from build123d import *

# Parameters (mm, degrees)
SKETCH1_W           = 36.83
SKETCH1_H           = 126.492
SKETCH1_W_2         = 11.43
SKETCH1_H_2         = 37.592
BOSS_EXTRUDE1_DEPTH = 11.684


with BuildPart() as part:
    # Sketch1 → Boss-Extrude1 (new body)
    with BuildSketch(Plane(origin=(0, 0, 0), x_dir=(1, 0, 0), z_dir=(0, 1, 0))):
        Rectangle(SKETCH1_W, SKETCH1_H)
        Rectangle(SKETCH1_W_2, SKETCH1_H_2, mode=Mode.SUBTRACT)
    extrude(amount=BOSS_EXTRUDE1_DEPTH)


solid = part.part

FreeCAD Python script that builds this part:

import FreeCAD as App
import Part
import Sketcher
Q = App.Units.Quantity

doc = App.newDocument("Part")
body = doc.addObject("PartDesign::Body", "Body")

# Sketch on XZ plane
sketch1 = doc.addObject("Sketcher::SketchObject", "Sketch")
body.addObject(sketch1)
sketch1.AttachmentSupport = (doc.XZ_Plane, [""])
sketch1.MapMode = "FlatFace"
sketch1.addGeometry(Part.LineSegment(App.Vector(-18, -63, 0), App.Vector(-18, 63, 0)), False)
sketch1.addGeometry(Part.LineSegment(App.Vector(-18, 63, 0), App.Vector(18, 63, 0)), False)
sketch1.addGeometry(Part.LineSegment(App.Vector(18, 63, 0), App.Vector(18, -63, 0)), False)
sketch1.addGeometry(Part.LineSegment(App.Vector(18, -63, 0), App.Vector(-18, -63, 0)), False)
sketch1.addGeometry(Part.LineSegment(App.Vector(6, 19, 0), App.Vector(-6, 19, 0)), False)
sketch1.addGeometry(Part.LineSegment(App.Vector(-6, 19, 0), App.Vector(-6, -19, 0)), False)
sketch1.addGeometry(Part.LineSegment(App.Vector(-6, -19, 0), App.Vector(6, -19, 0)), False)
sketch1.addGeometry(Part.LineSegment(App.Vector(6, -19, 0), App.Vector(6, 19, 0)), False)
sketch1.addConstraint(Sketcher.Constraint("Coincident", 0, 2, 1, 1))
sketch1.addConstraint(Sketcher.Constraint("Coincident", 1, 2, 2, 1))
sketch1.addConstraint(Sketcher.Constraint("Coincident", 2, 2, 3, 1))
sketch1.addConstraint(Sketcher.Constraint("Coincident", 3, 2, 0, 1))
sketch1.addConstraint(Sketcher.Constraint("Coincident", 4, 2, 5, 1))
sketch1.addConstraint(Sketcher.Constraint("Coincident", 5, 2, 6, 1))
sketch1.addConstraint(Sketcher.Constraint("Coincident", 6, 2, 7, 1))
sketch1.addConstraint(Sketcher.Constraint("Coincident", 7, 2, 4, 1))
sketch1.addConstraint(Sketcher.Constraint("Vertical", 0))
sketch1.addConstraint(Sketcher.Constraint("Horizontal", 1))
sketch1.addConstraint(Sketcher.Constraint("Vertical", 2))
sketch1.addConstraint(Sketcher.Constraint("Horizontal", 3))
sketch1.addConstraint(Sketcher.Constraint("Horizontal", 4))
sketch1.addConstraint(Sketcher.Constraint("Vertical", 5))
sketch1.addConstraint(Sketcher.Constraint("Horizontal", 6))
sketch1.addConstraint(Sketcher.Constraint("Vertical", 7))
sketch1.addConstraint(Sketcher.Constraint("Symmetric", 0, 2, 2, 2, -1, 1))
sketch1.addConstraint(Sketcher.Constraint("Symmetric", 4, 2, 6, 2, -1, 1))
sketch1.addConstraint(Sketcher.Constraint("DistanceX", 1, 1, 1, 2, Q("1.45 in")))
sketch1.addConstraint(Sketcher.Constraint("DistanceX", 4, 2, 4, 1, Q("0.45 in")))
sketch1.addConstraint(Sketcher.Constraint("DistanceY", 0, 1, 0, 2, Q("4.98 in")))
sketch1.addConstraint(Sketcher.Constraint("DistanceY", 5, 2, 5, 1, Q("1.48 in")))
pad1 = doc.addObject("PartDesign::Pad", "Pad")
body.addObject(pad1)
pad1.Profile = sketch1
pad1.Length = Q("0.46 in")
pad1.Reversed = True

doc.recompute()
